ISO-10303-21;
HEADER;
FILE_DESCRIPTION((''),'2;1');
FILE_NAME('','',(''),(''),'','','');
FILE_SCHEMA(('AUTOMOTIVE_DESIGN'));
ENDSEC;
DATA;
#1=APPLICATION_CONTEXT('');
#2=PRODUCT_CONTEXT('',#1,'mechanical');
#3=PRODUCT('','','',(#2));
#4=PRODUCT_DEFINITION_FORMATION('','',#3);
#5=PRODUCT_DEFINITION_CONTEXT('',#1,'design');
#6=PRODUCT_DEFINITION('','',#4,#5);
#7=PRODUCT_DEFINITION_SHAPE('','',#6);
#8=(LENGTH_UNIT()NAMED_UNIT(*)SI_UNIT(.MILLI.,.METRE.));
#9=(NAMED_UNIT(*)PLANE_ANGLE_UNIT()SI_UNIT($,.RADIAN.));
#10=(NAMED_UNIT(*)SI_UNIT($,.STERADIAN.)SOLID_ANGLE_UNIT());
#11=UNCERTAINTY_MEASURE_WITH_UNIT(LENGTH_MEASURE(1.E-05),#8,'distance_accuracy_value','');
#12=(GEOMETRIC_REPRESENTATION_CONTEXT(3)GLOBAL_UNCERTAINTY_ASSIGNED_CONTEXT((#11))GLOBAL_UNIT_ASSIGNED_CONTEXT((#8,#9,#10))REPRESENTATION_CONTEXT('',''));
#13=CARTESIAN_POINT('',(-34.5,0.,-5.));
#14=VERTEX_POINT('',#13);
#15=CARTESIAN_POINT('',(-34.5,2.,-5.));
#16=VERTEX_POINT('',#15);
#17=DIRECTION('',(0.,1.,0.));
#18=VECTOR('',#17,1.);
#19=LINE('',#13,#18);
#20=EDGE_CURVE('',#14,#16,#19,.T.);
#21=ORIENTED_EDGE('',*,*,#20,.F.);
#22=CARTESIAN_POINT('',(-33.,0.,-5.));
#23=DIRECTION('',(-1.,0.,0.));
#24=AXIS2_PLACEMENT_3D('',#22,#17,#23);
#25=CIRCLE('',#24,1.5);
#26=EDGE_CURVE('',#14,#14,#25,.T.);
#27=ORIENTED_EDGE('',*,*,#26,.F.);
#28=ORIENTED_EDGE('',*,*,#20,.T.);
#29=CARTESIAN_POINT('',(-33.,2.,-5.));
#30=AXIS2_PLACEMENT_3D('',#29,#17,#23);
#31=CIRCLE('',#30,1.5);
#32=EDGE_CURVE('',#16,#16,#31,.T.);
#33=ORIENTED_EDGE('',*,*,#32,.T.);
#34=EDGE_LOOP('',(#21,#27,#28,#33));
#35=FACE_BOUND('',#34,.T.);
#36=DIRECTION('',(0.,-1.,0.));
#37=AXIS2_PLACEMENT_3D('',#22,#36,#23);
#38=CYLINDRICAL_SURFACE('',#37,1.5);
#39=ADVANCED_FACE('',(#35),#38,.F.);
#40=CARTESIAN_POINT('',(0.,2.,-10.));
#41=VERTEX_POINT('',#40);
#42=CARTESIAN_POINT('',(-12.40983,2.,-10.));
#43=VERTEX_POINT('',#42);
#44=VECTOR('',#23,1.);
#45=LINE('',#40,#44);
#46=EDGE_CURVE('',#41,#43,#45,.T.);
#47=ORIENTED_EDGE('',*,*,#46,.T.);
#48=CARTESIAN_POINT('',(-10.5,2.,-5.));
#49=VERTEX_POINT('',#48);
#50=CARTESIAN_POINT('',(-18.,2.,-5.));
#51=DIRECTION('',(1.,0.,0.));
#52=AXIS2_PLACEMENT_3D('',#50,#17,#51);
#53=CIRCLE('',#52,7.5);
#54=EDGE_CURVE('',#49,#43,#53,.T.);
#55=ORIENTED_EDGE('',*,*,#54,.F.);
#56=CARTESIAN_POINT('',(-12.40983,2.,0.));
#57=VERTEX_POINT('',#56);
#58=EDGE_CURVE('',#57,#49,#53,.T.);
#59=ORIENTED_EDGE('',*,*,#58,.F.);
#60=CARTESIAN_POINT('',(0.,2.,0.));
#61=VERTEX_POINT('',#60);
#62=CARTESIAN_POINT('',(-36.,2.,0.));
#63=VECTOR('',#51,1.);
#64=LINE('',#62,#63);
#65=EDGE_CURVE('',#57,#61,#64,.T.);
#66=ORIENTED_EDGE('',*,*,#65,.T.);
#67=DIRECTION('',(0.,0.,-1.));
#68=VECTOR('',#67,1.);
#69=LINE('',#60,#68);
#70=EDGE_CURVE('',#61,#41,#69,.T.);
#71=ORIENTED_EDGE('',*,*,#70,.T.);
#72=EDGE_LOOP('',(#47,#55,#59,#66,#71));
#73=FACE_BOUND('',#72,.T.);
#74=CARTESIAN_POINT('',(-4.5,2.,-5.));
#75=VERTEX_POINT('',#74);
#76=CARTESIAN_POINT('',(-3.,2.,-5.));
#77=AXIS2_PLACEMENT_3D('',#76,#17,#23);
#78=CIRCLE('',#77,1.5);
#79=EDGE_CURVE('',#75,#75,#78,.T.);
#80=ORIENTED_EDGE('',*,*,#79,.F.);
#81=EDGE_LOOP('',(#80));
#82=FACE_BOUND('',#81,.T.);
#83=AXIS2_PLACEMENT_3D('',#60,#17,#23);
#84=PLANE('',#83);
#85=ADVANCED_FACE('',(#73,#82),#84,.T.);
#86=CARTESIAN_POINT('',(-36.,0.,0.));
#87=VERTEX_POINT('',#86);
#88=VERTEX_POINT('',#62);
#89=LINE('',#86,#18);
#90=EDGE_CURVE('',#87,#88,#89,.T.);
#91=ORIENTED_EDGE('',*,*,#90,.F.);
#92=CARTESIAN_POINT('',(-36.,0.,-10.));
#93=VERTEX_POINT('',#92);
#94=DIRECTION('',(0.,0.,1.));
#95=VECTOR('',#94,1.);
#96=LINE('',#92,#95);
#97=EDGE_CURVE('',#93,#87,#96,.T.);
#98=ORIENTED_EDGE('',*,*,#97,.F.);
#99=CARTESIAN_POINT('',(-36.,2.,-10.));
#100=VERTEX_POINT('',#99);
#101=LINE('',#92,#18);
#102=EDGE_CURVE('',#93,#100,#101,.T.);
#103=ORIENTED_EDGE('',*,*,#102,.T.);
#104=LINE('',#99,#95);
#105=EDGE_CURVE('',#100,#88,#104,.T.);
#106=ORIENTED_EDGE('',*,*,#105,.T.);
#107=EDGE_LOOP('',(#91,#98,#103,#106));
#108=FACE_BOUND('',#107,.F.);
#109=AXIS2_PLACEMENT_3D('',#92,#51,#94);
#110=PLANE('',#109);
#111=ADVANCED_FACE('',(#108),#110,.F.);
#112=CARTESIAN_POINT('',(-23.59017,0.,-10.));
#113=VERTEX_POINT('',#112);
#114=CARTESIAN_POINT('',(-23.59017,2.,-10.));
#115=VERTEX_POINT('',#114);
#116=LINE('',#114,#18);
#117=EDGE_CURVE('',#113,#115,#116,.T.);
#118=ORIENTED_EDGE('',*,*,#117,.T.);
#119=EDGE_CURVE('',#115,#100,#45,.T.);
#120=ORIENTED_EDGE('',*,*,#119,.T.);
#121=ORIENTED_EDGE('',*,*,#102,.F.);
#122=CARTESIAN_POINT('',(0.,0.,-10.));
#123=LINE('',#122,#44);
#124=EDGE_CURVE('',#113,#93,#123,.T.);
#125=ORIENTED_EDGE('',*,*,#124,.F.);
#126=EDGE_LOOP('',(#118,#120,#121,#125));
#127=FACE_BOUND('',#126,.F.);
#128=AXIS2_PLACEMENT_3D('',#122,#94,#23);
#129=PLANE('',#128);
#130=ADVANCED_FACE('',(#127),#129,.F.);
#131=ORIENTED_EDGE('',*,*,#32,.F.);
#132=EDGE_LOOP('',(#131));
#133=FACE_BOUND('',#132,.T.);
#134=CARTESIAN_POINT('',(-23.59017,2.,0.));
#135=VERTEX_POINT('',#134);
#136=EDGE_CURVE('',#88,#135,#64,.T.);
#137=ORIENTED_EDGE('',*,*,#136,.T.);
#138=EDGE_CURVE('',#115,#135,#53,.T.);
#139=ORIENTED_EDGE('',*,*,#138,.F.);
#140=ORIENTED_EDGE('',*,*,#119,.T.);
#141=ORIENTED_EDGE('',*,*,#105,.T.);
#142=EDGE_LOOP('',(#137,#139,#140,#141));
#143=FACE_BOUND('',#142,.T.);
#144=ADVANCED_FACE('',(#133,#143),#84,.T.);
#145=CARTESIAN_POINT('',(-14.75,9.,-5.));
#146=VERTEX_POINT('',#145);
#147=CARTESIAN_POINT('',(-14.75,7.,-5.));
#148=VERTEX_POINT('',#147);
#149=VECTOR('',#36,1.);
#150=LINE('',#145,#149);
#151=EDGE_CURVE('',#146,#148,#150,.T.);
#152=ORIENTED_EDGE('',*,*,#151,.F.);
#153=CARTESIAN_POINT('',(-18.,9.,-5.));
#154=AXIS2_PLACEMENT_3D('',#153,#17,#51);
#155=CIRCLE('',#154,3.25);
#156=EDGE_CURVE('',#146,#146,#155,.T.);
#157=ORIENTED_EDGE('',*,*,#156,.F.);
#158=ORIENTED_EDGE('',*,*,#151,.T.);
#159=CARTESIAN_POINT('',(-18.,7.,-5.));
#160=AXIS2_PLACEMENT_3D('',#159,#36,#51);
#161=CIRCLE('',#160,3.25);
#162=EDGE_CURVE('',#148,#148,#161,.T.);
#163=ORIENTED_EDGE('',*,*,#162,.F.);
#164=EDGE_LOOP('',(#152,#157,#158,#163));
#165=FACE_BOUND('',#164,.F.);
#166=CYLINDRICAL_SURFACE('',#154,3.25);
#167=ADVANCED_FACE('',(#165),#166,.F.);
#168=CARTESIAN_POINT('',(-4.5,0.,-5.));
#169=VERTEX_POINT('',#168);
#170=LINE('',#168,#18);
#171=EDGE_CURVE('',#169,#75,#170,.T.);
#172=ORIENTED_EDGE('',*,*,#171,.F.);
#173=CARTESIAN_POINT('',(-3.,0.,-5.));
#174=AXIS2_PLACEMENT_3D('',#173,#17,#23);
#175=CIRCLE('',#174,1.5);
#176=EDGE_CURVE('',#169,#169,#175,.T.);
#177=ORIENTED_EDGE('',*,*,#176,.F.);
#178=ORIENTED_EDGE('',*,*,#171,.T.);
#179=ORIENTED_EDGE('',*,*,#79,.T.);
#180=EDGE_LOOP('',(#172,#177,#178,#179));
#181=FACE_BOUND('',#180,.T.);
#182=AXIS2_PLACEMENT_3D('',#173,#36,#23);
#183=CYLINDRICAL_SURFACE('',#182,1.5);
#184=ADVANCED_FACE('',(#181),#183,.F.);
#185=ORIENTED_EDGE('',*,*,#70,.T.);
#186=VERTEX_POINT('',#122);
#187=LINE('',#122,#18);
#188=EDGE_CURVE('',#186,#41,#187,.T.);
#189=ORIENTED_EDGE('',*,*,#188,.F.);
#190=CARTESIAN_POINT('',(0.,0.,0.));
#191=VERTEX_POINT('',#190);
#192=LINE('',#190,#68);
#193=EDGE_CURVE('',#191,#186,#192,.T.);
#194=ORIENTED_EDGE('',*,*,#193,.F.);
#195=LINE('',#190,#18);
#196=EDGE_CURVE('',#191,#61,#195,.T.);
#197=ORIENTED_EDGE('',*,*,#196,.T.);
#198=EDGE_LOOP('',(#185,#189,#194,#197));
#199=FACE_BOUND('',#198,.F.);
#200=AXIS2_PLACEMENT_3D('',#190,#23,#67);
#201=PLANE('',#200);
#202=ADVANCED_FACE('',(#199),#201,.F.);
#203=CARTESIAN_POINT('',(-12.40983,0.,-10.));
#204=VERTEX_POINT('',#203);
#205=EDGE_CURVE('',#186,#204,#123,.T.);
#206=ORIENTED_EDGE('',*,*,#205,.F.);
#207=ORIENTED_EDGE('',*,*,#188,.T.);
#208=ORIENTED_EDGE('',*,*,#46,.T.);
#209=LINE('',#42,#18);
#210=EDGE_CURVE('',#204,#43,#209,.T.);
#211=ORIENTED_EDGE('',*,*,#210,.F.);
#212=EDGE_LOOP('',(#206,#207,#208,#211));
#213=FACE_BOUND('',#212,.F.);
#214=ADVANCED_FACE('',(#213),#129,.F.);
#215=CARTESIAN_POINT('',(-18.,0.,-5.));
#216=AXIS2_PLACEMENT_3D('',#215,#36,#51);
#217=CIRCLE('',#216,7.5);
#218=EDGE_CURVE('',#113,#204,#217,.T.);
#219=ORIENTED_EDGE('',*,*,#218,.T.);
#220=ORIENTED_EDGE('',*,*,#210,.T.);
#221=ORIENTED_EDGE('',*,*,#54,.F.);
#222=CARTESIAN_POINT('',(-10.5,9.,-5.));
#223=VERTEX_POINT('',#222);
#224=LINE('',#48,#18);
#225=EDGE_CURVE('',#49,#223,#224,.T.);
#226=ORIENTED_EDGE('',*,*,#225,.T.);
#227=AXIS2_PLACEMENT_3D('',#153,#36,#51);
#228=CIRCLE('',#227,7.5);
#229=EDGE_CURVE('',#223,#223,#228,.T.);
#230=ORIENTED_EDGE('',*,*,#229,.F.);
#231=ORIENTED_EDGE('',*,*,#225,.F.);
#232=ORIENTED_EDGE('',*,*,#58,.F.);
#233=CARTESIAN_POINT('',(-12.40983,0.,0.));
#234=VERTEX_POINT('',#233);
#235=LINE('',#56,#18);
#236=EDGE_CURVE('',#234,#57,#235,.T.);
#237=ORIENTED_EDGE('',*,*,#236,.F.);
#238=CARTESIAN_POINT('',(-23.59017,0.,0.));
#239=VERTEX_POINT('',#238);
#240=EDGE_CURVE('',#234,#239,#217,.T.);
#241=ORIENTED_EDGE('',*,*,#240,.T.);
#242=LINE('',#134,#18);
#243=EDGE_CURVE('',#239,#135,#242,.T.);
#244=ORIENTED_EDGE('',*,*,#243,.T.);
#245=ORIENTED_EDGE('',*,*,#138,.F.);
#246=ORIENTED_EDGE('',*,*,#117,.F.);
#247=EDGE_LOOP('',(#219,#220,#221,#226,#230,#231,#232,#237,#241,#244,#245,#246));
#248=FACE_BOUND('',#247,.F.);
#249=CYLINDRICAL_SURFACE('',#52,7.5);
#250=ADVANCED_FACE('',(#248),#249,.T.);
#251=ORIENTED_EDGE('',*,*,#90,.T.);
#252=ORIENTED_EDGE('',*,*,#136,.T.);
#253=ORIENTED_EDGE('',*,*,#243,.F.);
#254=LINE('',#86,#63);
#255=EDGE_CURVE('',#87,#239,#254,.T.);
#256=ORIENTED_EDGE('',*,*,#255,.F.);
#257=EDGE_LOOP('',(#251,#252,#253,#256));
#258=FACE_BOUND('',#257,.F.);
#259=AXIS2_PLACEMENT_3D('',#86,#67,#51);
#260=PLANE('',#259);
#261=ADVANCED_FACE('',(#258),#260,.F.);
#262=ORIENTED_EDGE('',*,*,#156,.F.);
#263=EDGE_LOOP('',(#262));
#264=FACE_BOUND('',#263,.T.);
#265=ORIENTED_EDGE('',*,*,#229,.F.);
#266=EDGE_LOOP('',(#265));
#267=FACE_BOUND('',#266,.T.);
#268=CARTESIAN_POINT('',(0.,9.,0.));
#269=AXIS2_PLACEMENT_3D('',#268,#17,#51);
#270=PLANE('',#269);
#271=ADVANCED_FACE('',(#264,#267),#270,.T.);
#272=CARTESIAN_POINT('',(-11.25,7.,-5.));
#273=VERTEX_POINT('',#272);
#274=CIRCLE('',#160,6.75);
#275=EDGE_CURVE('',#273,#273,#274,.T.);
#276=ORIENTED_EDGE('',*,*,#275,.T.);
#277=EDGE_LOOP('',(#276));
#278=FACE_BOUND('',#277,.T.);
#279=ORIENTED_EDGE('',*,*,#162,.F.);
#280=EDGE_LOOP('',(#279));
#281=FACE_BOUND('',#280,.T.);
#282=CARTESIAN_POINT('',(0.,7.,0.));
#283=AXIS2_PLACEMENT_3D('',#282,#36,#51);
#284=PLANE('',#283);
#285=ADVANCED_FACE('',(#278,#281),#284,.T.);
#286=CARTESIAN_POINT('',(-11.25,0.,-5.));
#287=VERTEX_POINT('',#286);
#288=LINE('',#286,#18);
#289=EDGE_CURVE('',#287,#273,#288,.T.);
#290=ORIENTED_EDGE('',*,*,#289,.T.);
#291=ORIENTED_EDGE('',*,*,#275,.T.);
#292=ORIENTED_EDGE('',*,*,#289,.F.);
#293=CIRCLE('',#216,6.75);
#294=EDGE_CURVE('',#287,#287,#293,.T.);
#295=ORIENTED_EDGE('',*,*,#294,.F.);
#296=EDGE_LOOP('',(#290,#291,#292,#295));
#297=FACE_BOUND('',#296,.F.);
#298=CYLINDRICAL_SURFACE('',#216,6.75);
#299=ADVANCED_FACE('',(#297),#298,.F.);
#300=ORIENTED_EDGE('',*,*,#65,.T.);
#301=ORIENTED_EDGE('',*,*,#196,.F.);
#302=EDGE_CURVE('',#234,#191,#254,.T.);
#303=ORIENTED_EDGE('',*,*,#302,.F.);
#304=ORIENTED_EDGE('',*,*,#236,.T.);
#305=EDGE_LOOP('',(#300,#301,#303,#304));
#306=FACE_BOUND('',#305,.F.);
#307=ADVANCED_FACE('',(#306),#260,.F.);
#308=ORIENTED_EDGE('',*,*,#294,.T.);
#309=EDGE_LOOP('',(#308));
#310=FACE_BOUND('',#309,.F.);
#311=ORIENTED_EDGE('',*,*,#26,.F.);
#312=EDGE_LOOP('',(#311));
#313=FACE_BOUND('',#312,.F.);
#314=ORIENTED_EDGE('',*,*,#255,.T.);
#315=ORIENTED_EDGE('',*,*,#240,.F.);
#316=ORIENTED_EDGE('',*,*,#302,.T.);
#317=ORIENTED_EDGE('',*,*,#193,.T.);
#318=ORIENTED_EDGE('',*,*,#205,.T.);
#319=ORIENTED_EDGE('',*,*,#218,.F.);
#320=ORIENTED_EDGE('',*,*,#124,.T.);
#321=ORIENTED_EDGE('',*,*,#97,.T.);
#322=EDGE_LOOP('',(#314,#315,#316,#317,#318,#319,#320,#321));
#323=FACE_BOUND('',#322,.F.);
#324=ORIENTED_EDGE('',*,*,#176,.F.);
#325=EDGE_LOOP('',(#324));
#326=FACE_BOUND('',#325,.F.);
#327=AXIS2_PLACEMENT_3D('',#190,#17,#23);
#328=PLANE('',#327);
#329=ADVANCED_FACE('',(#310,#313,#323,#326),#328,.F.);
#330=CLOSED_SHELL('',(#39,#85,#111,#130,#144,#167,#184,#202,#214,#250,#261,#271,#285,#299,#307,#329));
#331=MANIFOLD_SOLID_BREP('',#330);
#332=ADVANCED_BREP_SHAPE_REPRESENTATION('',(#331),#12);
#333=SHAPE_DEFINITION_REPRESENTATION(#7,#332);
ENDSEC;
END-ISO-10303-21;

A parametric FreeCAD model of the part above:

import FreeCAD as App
import Part
import Sketcher
from FreeCAD import Vector


def add_polygon(sketch, points):
    """Adds a closed chain of lines whose ends are joined by coincident constraints."""
    first, n = sketch.GeometryCount, len(points)
    for a, b in zip(points, points[1:] + points[:1]):
        sketch.addGeometry(Part.LineSegment(App.Vector(*a, 0), App.Vector(*b, 0)), False)
    for i in range(n):
        sketch.addConstraint(Sketcher.Constraint("Coincident", first + i, 2, first + (i + 1) % n, 1))

doc = App.newDocument("Part")
params = doc.addObject("Spreadsheet::Sheet", "Params")
for row, (alias, value) in enumerate([
    ("sketch1_width", "36 mm"),
    ("sketch1_height", "10 mm"),
    ("sketch1_diameter", "3 mm"),
    ("pad1_length", "2 mm"),
    ("sketch2_diameter", "15 mm"),
    ("pad2_length", "7 mm"),
    ("sketch3_diameter", "15 mm"),
    ("pad3_length", "2 mm"),
    ("sketch4_diameter", "6.5 mm"),
    ("sketch5_diameter", "13.5 mm"),
    ("sketch5_diameter2", "6.5 mm"),
    ("pocket2_length", "7 mm"),
], start=1):
    params.set(f"A{row}", alias)
    params.set(f"B{row}", "=" + value)
    params.setAlias(f"B{row}", alias)

body = doc.addObject("PartDesign::Body", "Body")

# Sketch on XZ plane
sketch1 = doc.addObject("Sketcher::SketchObject", "Sketch")
body.addObject(sketch1)
sketch1.AttachmentSupport = (doc.XZ_Plane, [""])
sketch1.MapMode = "FlatFace"
add_polygon(sketch1, [(-36, 0), (0, 0), (0, -10), (-36, -10)])  # lines 0-3
sketch1.addGeometry(Part.Circle(Vector(-3, -5, 0), Vector(0, 0, 1), 1.5), False)  # 4
sketch1.addGeometry(Part.Circle(Vector(-33, -5, 0), Vector(0, 0, 1), 1.5), False)  # 5
sketch1.addConstraint(Sketcher.Constraint("Horizontal", 0))
sketch1.addConstraint(Sketcher.Constraint("Vertical", 1))
sketch1.addConstraint(Sketcher.Constraint("Horizontal", 2))
sketch1.addConstraint(Sketcher.Constraint("Vertical", 3))
sketch1.addConstraint(Sketcher.Constraint("Coincident", 0, 2, -1, 1))
sketch1.addConstraint(Sketcher.Constraint("Equal", 4, 5))
sketch1.addConstraint(Sketcher.Constraint("Horizontal", 4, 3, 5, 3))
sketch1.addConstraint(Sketcher.Constraint("DistanceX", 0, 1, 0, 2, 36.0))
sketch1.addConstraint(Sketcher.Constraint("DistanceY", 1, 2, 1, 1, 10.0))
sketch1.addConstraint(Sketcher.Constraint("Diameter", 4, 3.0))
sketch1.addConstraint(Sketcher.Constraint("DistanceX", 4, 3, -1, 1, 3.0))
sketch1.addConstraint(Sketcher.Constraint("DistanceY", 4, 3, -1, 1, 5.0))
sketch1.addConstraint(Sketcher.Constraint("DistanceX", 5, 3, -1, 1, 33.0))
sketch1.setExpression("Constraints[11]", "Params.sketch1_width")
sketch1.setExpression("Constraints[12]", "Params.sketch1_height")
sketch1.setExpression("Constraints[13]", "Params.sketch1_diameter")
pad1 = doc.addObject("PartDesign::Pad", "Pad")
body.addObject(pad1)
pad1.Profile = sketch1
pad1.setExpression("Length", "Params.pad1_length")
pad1.Reversed = True

# Sketch on XZ plane
sketch2 = doc.addObject("Sketcher::SketchObject", "Sketch001")
body.addObject(sketch2)
sketch2.AttachmentSupport = (doc.XZ_Plane, [""])
sketch2.MapMode = "FlatFace"
sketch2.AttachmentOffset = App.Placement(Vector(0, 0, -2), App.Rotation())
sketch2.addGeometry(Part.Circle(Vector(-18, -5, 0), Vector(0, 0, 1), 7.5), False)
sketch2.addConstraint(Sketcher.Constraint("Diameter", 0, 15.0))
sketch2.addConstraint(Sketcher.Constraint("DistanceX", 0, 3, -1, 1, 18.0))
sketch2.addConstraint(Sketcher.Constraint("DistanceY", 0, 3, -1, 1, 5.0))
sketch2.setExpression("Constraints[0]", "Params.sketch2_diameter")
pad2 = doc.addObject("PartDesign::Pad", "Pad001")
body.addObject(pad2)
pad2.Profile = sketch2
pad2.setExpression("Length", "Params.pad2_length")
pad2.Reversed = True

# Sketch on XZ plane
sketch3 = doc.addObject("Sketcher::SketchObject", "Sketch002")
body.addObject(sketch3)
sketch3.AttachmentSupport = (doc.XZ_Plane, [""])
sketch3.MapMode = "FlatFace"
sketch3.AttachmentOffset = App.Placement(Vector(0, 0, -2), App.Rotation())
sketch3.addGeometry(Part.Circle(Vector(-18, -5, 0), Vector(0, 0, 1), 7.5), False)
sketch3.addConstraint(Sketcher.Constraint("Diameter", 0, 15.0))
sketch3.addConstraint(Sketcher.Constraint("DistanceX", 0, 3, -1, 1, 18.0))
sketch3.addConstraint(Sketcher.Constraint("DistanceY", 0, 3, -1, 1, 5.0))
sketch3.setExpression("Constraints[0]", "Params.sketch3_diameter")
pad3 = doc.addObject("PartDesign::Pad", "Pad002")
body.addObject(pad3)
pad3.Profile = sketch3
pad3.setExpression("Length", "Params.pad3_length")

# Sketch on XZ plane
sketch4 = doc.addObject("Sketcher::SketchObject", "Sketch003")
body.addObject(sketch4)
sketch4.AttachmentSupport = (doc.XZ_Plane, [""])
sketch4.MapMode = "FlatFace"
sketch4.AttachmentOffset = App.Placement(Vector(0, 0, -9), App.Rotation())
sketch4.addGeometry(Part.Circle(Vector(-18, -5, 0), Vector(0, 0, 1), 3.25), False)
sketch4.addConstraint(Sketcher.Constraint("Diameter", 0, 6.5))
sketch4.addConstraint(Sketcher.Constraint("DistanceX", 0, 3, -1, 1, 18.0))
sketch4.addConstraint(Sketcher.Constraint("DistanceY", 0, 3, -1, 1, 5.0))
sketch4.setExpression("Constraints[0]", "Params.sketch4_diameter")
pocket1 = doc.addObject("PartDesign::Pocket", "Pocket")
body.addObject(pocket1)
pocket1.Profile = sketch4
pocket1.Type = "UpToFirst"
pocket1.Reversed = True

# Sketch on XZ plane
sketch5 = doc.addObject("Sketcher::SketchObject", "Sketch004")
body.addObject(sketch5)
sketch5.AttachmentSupport = (doc.XZ_Plane, [""])
sketch5.MapMode = "FlatFace"
sketch5.addGeometry(Part.Circle(Vector(-18, -5, 0), Vector(0, 0, 1), 6.75), False)
sketch5.addGeometry(Part.Circle(Vector(-18, -5, 0), Vector(0, 0, 1), 3.25), False)
sketch5.addConstraint(Sketcher.Constraint("Coincident", 1, 3, 0, 3))
sketch5.addConstraint(Sketcher.Constraint("Diameter", 0, 13.5))
sketch5.addConstraint(Sketcher.Constraint("Diameter", 1, 6.5))
sketch5.addConstraint(Sketcher.Constraint("DistanceX", 0, 3, -1, 1, 18.0))
sketch5.addConstraint(Sketcher.Constraint("DistanceY", 0, 3, -1, 1, 5.0))
sketch5.setExpression("Constraints[1]", "Params.sketch5_diameter")
sketch5.setExpression("Constraints[2]", "Params.sketch5_diameter2")
pocket2 = doc.addObject("PartDesign::Pocket", "Pocket001")
body.addObject(pocket2)
pocket2.Profile = sketch5
pocket2.setExpression("Length", "Params.pocket2_length")

doc.recompute()
